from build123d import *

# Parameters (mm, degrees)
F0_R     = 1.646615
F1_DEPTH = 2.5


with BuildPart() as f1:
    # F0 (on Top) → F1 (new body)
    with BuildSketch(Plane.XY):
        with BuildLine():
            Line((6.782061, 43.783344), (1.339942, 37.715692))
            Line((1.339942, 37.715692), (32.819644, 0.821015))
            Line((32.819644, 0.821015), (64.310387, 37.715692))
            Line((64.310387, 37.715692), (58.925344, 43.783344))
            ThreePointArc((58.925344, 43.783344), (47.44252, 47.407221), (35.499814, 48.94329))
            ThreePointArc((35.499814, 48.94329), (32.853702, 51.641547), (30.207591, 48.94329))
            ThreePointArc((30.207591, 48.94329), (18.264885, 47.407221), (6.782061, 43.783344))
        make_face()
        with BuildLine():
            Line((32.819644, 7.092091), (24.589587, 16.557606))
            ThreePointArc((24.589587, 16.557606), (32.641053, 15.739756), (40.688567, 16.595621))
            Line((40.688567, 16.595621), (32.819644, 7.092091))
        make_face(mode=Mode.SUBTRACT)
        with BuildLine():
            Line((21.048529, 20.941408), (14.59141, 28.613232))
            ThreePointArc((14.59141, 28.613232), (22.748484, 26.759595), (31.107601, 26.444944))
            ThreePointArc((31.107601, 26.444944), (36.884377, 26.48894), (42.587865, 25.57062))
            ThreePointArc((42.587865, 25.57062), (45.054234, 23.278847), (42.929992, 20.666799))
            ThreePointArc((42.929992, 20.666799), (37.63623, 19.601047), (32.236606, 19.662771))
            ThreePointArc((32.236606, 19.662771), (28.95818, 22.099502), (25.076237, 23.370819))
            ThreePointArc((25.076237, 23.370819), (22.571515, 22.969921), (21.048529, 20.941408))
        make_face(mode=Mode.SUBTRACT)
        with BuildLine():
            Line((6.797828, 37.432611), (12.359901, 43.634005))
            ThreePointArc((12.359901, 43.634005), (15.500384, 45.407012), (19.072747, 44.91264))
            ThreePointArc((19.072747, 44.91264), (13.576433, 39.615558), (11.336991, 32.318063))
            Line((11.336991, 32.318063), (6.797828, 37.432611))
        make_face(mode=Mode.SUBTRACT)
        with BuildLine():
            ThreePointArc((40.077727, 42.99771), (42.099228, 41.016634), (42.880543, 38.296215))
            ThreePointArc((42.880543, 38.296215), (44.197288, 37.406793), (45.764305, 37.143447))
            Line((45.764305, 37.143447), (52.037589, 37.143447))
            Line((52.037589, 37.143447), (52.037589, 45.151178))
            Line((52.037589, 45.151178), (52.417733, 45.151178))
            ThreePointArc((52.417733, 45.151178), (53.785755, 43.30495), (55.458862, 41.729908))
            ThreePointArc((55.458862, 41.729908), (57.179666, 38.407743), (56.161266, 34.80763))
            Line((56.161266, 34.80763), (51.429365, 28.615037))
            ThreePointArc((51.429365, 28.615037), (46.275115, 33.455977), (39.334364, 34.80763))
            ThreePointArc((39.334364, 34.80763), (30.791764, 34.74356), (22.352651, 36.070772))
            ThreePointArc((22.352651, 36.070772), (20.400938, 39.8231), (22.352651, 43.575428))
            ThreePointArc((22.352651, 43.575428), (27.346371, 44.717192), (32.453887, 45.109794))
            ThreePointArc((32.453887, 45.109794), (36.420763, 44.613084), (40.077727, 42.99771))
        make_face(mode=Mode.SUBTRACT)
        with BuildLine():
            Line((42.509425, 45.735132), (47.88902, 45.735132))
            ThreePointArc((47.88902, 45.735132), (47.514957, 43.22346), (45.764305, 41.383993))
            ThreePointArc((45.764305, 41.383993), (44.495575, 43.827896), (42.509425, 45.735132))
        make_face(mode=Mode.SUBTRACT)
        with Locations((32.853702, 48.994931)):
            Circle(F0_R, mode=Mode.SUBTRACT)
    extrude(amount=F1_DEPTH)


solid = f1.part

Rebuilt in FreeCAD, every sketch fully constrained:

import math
import FreeCAD as App
import Part
import Sketcher
from FreeCAD import Vector

doc = App.newDocument("Part")
body = doc.addObject("PartDesign::Body", "Body")

# Sketch on XY plane
sketch1 = body.newObject("Sketcher::SketchObject", "Sketch")
sketch1.AttachmentSupport = (doc.getObject("XY_Plane"), [""])
sketch1.MapMode = "FlatFace"
sketch1.addGeometry([
    Part.LineSegment(Vector(6.78, 43.78, 0), Vector(1.34, 37.72, 0)),  # 0
    Part.LineSegment(Vector(1.34, 37.72, 0), Vector(32.82, 0.82, 0)),  # 1
    Part.LineSegment(Vector(32.82, 0.82, 0), Vector(64.31, 37.72, 0)),  # 2
    Part.LineSegment(Vector(64.31, 37.72, 0), Vector(58.93, 43.78, 0)),  # 3
    Part.ArcOfCircle(Part.Circle(Vector(32.85, -18.82, 0), Vector(0, 0, 1), 67.82), math.radians(67), math.radians(88)),  # 4
    Part.ArcOfCircle(Part.Circle(Vector(32.85, 48.99, 0), Vector(0, 0, 1), 2.65), math.radians(-1), math.radians(181)),  # 5
    Part.ArcOfCircle(Part.Circle(Vector(32.85, -18.82, 0), Vector(0, 0, 1), 67.82), math.radians(92), math.radians(113)),  # 6
    Part.ArcOfCircle(Part.Circle(Vector(24.32, 20.07, 0), Vector(0, 0, 1), 3.39), math.radians(77), math.radians(165)),  # 7
    Part.LineSegment(Vector(21.05, 20.94, 0), Vector(14.59, 28.61, 0)),  # 8
    Part.ArcOfCircle(Part.Circle(Vector(28.62, 71.46, 0), Vector(0, 0, 1), 45.08), math.radians(-108), math.radians(-87)),  # 9
    Part.ArcOfCircle(Part.Circle(Vector(34.26, -7.99, 0), Vector(0, 0, 1), 34.58), math.radians(76.06), math.radians(95.23)),  # 10
    Part.ArcOfCircle(Part.Circle(Vector(42.6, 23.11, 0), Vector(0, 0, 1), 2.46), math.radians(-82), math.radians(90)),  # 11
    Part.ArcOfCircle(Part.Circle(Vector(35.23, 45.24, 0), Vector(0, 0, 1), 25.75), math.radians(-97), math.radians(-73)),  # 12
    Part.ArcOfCircle(Part.Circle(Vector(23.11, 10.81, 0), Vector(0, 0, 1), 12.71), math.radians(44), math.radians(81)),  # 13
    Part.LineSegment(Vector(40.69, 16.6, 0), Vector(32.82, 7.09, 0)),  # 14
    Part.LineSegment(Vector(32.82, 7.09, 0), Vector(24.59, 16.56, 0)),  # 15
    Part.ArcOfCircle(Part.Circle(Vector(32.55, 54.87, 0), Vector(0, 0, 1), 39.13), math.radians(-102), math.radians(-78)),  # 16
    Part.LineSegment(Vector(11.34, 32.32, 0), Vector(6.8, 37.43, 0)),  # 17
    Part.LineSegment(Vector(6.8, 37.43, 0), Vector(12.36, 43.63, 0)),  # 18
    Part.ArcOfCircle(Part.Circle(Vector(16.55, 39.87, 0), Vector(0, 0, 1), 5.63), math.radians(63), math.radians(138)),  # 19
    Part.ArcOfCircle(Part.Circle(Vector(26.57, 31.64, 0), Vector(0, 0, 1), 15.24), math.radians(119), math.radians(177)),  # 20
    Part.ArcOfCircle(Part.Circle(Vector(32.74, 31.34, 0), Vector(0, 0, 1), 13.77), math.radians(58), math.radians(91)),  # 21
    Part.ArcOfCircle(Part.Circle(Vector(37.33, 38.18, 0), Vector(0, 0, 1), 5.55), math.radians(1), math.radians(60)),  # 22
    Part.ArcOfCircle(Part.Circle(Vector(45.59, 40.88, 0), Vector(0, 0, 1), 3.74), math.radians(-136), math.radians(-87)),  # 23
    Part.LineSegment(Vector(45.76, 37.14, 0), Vector(52.04, 37.14, 0)),  # 24
    Part.LineSegment(Vector(52.04, 37.14, 0), Vector(52.04, 45.15, 0)),  # 25
    Part.LineSegment(Vector(52.04, 45.15, 0), Vector(52.42, 45.15, 0)),  # 26
    Part.ArcOfCircle(Part.Circle(Vector(63.45, 51.9, 0), Vector(0, 0, 1), 12.94), math.radians(-149), math.radians(-128)),  # 27
    Part.ArcOfCircle(Part.Circle(Vector(52.12, 37.89, 0), Vector(0, 0, 1), 5.08), math.radians(-37), math.radians(49)),  # 28
    Part.LineSegment(Vector(56.16, 34.81, 0), Vector(51.43, 28.62, 0)),  # 29
    Part.ArcOfCircle(Part.Circle(Vector(40.46, 22.1, 0), Vector(0, 0, 1), 12.76), math.radians(31), math.radians(95)),  # 30
    Part.ArcOfCircle(Part.Circle(Vector(34.67, 86.91, 0), Vector(0, 0, 1), 52.31), math.radians(-103.62), math.radians(-84.89)),  # 31
    Part.ArcOfCircle(Part.Circle(Vector(24.98, 39.82, 0), Vector(0, 0, 1), 4.58), math.radians(125), math.radians(235)),  # 32
    Part.ArcOfCircle(Part.Circle(Vector(32.55, 10.48, 0), Vector(0, 0, 1), 34.63), math.radians(90.15), math.radians(107.12)),  # 33
    Part.Circle(Vector(32.85, 48.99, 0), Vector(0, 0, 1), 1.65),  # 34
    Part.ArcOfCircle(Part.Circle(Vector(37.72, 38.76, 0), Vector(0, 0, 1), 8.46), math.radians(18), math.radians(56)),  # 35
    Part.LineSegment(Vector(42.51, 45.74, 0), Vector(47.89, 45.74, 0)),  # 36
    Part.ArcOfCircle(Part.Circle(Vector(43.73, 45.07, 0), Vector(0, 0, 1), 4.21), math.radians(-61), math.radians(9)),  # 37
], False)
sketch1.addConstraint([
    Sketcher.Constraint("Coincident", 0, 2, 1, 1),
    Sketcher.Constraint("Coincident", 1, 2, 2, 1),
    Sketcher.Constraint("Coincident", 2, 2, 3, 1),
    Sketcher.Constraint("Coincident", 3, 2, 4, 1),
    Sketcher.Constraint("Coincident", 4, 2, 5, 1),
    Sketcher.Constraint("Coincident", 5, 2, 6, 1),
    Sketcher.Constraint("Coincident", 6, 2, 0, 1),
    Sketcher.Constraint("Coincident", 7, 2, 8, 1),
    Sketcher.Constraint("Coincident", 8, 2, 9, 1),
    Sketcher.Constraint("Coincident", 9, 2, 10, 2),
    Sketcher.Constraint("Coincident", 10, 1, 11, 2),
    Sketcher.Constraint("Coincident", 11, 1, 12, 2),
    Sketcher.Constraint("Coincident", 12, 1, 13, 1),
    Sketcher.Constraint("Coincident", 13, 2, 7, 1),
    Sketcher.Constraint("Coincident", 14, 2, 15, 1),
    Sketcher.Constraint("Coincident", 15, 2, 16, 1),
    Sketcher.Constraint("Coincident", 16, 2, 14, 1),
    Sketcher.Constraint("Coincident", 17, 2, 18, 1),
    Sketcher.Constraint("Tangent", 18, 2, 19, 2),
    Sketcher.Constraint("Coincident", 19, 1, 20, 1),
    Sketcher.Constraint("Coincident", 20, 2, 17, 1),
    Sketcher.Constraint("Coincident", 21, 1, 22, 2),
    Sketcher.Constraint("Coincident", 22, 1, 23, 1),
    Sketcher.Constraint("Coincident", 23, 2, 24, 1),
    Sketcher.Constraint("Coincident", 24, 2, 25, 1),
    Sketcher.Constraint("Coincident", 25, 2, 26, 1),
    Sketcher.Constraint("Coincident", 26, 2, 27, 1),
    Sketcher.Constraint("Coincident", 27, 2, 28, 2),
    Sketcher.Constraint("Tangent", 28, 1, 29, 1),
    Sketcher.Constraint("Coincident", 29, 2, 30, 1),
    Sketcher.Constraint("Coincident", 30, 2, 31, 2),
    Sketcher.Constraint("Coincident", 31, 1, 32, 2),
    Sketcher.Constraint("Coincident", 32, 1, 33, 2),
    Sketcher.Constraint("Coincident", 33, 1, 21, 2),
    Sketcher.Constraint("Coincident", 35, 2, 36, 1),
    Sketcher.Constraint("Coincident", 36, 2, 37, 2),
    Sketcher.Constraint("Coincident", 37, 1, 35, 1),
    Sketcher.Constraint("Horizontal", 24),
    Sketcher.Constraint("Vertical", 25),
    Sketcher.Constraint("Horizontal", 26),
    Sketcher.Constraint("Horizontal", 36),
    Sketcher.Constraint("Coincident", 6, 3, 4, 3),
    Sketcher.Constraint("Coincident", 34, 3, 5, 3),
    Sketcher.Constraint("Equal", 4, 6),
    Sketcher.Constraint("Parallel", 3, 17),
    Sketcher.Constraint("Parallel", 0, 18),
    Sketcher.Constraint("Horizontal", 0, 2, 2, 2),
    Sketcher.Constraint("Horizontal", 4, 2, 5, 2),
    Sketcher.Constraint("Horizontal", 3, 2, 6, 2),
    Sketcher.Constraint("Horizontal", 28, 1, 30, 2),
    Sketcher.Constraint("Vertical", 1, 2, 14, 2),
    Sketcher.Constraint("Vertical", 31, 1, 32, 1),
    Sketcher.Constraint("Vertical", 23, 2, 37, 1),
    Sketcher.Constraint("Radius", 12, 25.7496),
    Sketcher.Constraint("Radius", 13, 12.713801),
    Sketcher.Constraint("Radius", 37, 4.209302),
    Sketcher.Constraint("Diameter", 34, 3.29323),
    Sketcher.Constraint("Radius", 19, 5.634911),
    Sketcher.Constraint("Radius", 21, 13.76881),
    Sketcher.Constraint("Radius", 22, 5.548469),
    Sketcher.Constraint("Radius", 28, 5.084119),
    Sketcher.Constraint("Radius", 31, 52.310792),
    Sketcher.Constraint("Radius", 35, 8.463028),
    Sketcher.Constraint("Radius", 4, 67.819183),
    Sketcher.Constraint("Radius", 5, 2.646615),
    Sketcher.Constraint("Radius", 7, 3.385124),
    Sketcher.Constraint("Radius", 9, 45.080663),
    Sketcher.Constraint("Radius", 10, 34.579824),
    Sketcher.Constraint("Radius", 11, 2.463226),
    Sketcher.Constraint("Radius", 16, 39.131395),
    Sketcher.Constraint("Radius", 20, 15.244945),
    Sketcher.Constraint("Radius", 23, 3.744764),
    Sketcher.Constraint("Radius", 27, 12.935273),
    Sketcher.Constraint("Radius", 30, 12.755227),
    Sketcher.Constraint("Radius", 32, 4.582935),
    Sketcher.Constraint("Radius", 33, 34.629724),
    Sketcher.Constraint("DistanceY", 25, 1, 25, 2, 8.007731),
    Sketcher.Constraint("DistanceX", -1, 1, 4, 3, 32.853701),
    Sketcher.Constraint("DistanceX", -1, 1, 27, 3, 63.453699),
    Sketcher.Constraint("DistanceY", -1, 1, 32, 3, 39.8231),
    Sketcher.Constraint("DistanceX", -1, 1, 9, 2, 31.107601),
    Sketcher.Constraint("DistanceY", -1, 1, 11, 1, 20.666799),
    Sketcher.Constraint("DistanceX", -1, 1, 18, 2, 12.359901),
    Sketcher.Constraint("Distance", 1, 48.499369),
    Sketcher.Constraint("Distance", 3, 8.11265),
    Sketcher.Constraint("Distance", 15, 12.543118),
    Sketcher.Constraint("Distance", 17, 6.838319),
    Sketcher.Constraint("Distance", 29, 7.793529),
    Sketcher.Constraint("DistanceX", 24, 1, 24, 2, 6.273284),
    Sketcher.Constraint("DistanceX", 26, 1, 26, 2, 0.380144),
    Sketcher.Constraint("DistanceX", 36, 1, 36, 2, 5.379595),
    Sketcher.Constraint("DistanceY", 4, 3, -1, 1, 18.824251),
    Sketcher.Constraint("DistanceY", -1, 1, 5, 3, 48.994932),
    Sketcher.Constraint("DistanceX", -1, 1, 7, 3, 24.319909),
    Sketcher.Constraint("DistanceY", -1, 1, 7, 3, 20.071268),
    Sketcher.Constraint("DistanceX", -1, 1, 9, 3, 28.616438),
    Sketcher.Constraint("DistanceX", -1, 1, 10, 3, 34.258421),
    Sketcher.Constraint("DistanceX", -1, 1, 11, 3, 42.596981),
    Sketcher.Constraint("DistanceY", -1, 1, 11, 3, 23.107411),
    Sketcher.Constraint("DistanceY", -1, 1, 12, 3, 45.23789),
    Sketcher.Constraint("DistanceX", -1, 1, 16, 3, 32.548651),
    Sketcher.Constraint("DistanceY", -1, 1, 16, 3, 54.871042),
    Sketcher.Constraint("DistanceX", -1, 1, 19, 3, 16.554742),
    Sketcher.Constraint("DistanceY", -1, 1, 19, 3, 39.871621),
    Sketcher.Constraint("DistanceY", -1, 1, 20, 3, 31.636762),
    Sketcher.Constraint("DistanceX", -1, 1, 22, 3, 37.333389),
    Sketcher.Constraint("DistanceY", -1, 1, 22, 3, 38.175458),
    Sketcher.Constraint("DistanceX", -1, 1, 28, 3, 52.12152),
    Sketcher.Constraint("DistanceX", -1, 1, 31, 3, 34.672051),
    Sketcher.Constraint("DistanceY", -1, 1, 31, 3, 86.910238),
    Sketcher.Constraint("DistanceX", -1, 1, 33, 3, 32.546931),
    Sketcher.Constraint("DistanceY", -1, 1, 35, 3, 38.75853),
    Sketcher.Constraint("DistanceY", -1, 1, 0, 2, 37.715692),
    Sketcher.Constraint("DistanceX", -1, 1, 6, 2, 6.782061),
    Sketcher.Constraint("DistanceX", -1, 1, 7, 2, 21.048529),
    Sketcher.Constraint("DistanceX", -1, 1, 8, 2, 14.59141),
    Sketcher.Constraint("DistanceY", -1, 1, 8, 2, 28.613232),
    Sketcher.Constraint("DistanceY", -1, 1, 12, 1, 19.662771),
    Sketcher.Constraint("DistanceY", -1, 1, 13, 2, 23.370819),
    Sketcher.Constraint("DistanceY", -1, 1, 14, 2, 7.092091),
    Sketcher.Constraint("DistanceY", -1, 1, 16, 2, 16.595621),
    Sketcher.Constraint("DistanceY", -1, 1, 17, 2, 37.432611),
    Sketcher.Constraint("DistanceY", -1, 1, 21, 1, 42.99771),
    Sketcher.Constraint("DistanceX", -1, 1, 24, 2, 52.037589),
    Sketcher.Constraint("DistanceY", -1, 1, 25, 2, 45.151178),
    Sketcher.Constraint("DistanceY", -1, 1, 27, 2, 41.729908),
    Sketcher.Constraint("DistanceY", -1, 1, 28, 1, 34.80763),
    Sketcher.Constraint("DistanceX", -1, 1, 31, 1, 22.352651),
    Sketcher.Constraint("DistanceY", -1, 1, 35, 2, 45.735132),
    Sketcher.Constraint("DistanceX", -1, 1, 36, 2, 47.88902),
    Sketcher.Constraint("Distance", 2, 48.506537),
    Sketcher.Constraint("DistanceX", -1, 1, 21, 3, 32.744754),
    Sketcher.Constraint("DistanceX", -1, 1, 23, 3, 45.587293),
])
pad1 = body.newObject("PartDesign::Pad", "Pad")
pad1.Profile = sketch1
pad1.Length = 2.5

doc.recompute()
